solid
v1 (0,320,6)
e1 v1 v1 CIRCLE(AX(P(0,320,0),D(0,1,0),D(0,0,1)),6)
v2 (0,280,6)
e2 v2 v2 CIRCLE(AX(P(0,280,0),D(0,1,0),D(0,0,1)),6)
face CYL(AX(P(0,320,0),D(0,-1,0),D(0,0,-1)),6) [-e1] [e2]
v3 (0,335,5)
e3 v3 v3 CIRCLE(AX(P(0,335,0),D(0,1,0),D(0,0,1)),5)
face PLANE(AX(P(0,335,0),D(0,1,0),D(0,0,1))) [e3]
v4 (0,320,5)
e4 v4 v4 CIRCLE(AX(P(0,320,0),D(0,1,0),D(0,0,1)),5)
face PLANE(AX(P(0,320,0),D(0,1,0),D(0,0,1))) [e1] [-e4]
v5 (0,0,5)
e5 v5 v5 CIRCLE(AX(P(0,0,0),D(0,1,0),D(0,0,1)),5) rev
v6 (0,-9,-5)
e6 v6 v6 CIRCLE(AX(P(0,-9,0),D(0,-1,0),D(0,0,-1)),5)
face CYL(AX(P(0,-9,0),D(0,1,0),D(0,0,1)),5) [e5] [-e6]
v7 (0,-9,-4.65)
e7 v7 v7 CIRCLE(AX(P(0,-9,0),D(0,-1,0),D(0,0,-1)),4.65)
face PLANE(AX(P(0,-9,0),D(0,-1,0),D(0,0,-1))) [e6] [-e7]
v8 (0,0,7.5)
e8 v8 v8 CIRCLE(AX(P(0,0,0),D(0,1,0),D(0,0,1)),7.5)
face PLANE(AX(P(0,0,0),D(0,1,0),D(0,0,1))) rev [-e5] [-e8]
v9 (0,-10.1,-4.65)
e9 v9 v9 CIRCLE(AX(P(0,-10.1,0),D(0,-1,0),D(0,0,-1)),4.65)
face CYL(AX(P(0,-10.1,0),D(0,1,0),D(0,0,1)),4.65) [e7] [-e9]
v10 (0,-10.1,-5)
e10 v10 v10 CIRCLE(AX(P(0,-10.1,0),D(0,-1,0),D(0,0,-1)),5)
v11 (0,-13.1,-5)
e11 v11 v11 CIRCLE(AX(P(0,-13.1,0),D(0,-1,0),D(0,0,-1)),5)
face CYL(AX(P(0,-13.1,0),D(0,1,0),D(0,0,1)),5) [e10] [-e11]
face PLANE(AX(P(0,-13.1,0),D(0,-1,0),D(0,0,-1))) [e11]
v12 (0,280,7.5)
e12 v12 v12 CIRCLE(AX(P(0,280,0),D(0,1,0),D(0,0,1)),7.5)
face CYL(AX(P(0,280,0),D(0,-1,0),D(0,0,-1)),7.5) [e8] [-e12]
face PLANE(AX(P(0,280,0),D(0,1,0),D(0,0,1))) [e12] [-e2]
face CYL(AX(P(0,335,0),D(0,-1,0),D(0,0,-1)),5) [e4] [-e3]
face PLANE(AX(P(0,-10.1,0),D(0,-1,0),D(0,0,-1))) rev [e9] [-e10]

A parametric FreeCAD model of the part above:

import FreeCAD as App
import Part
import Sketcher
from FreeCAD import Vector
Q = App.Units.Quantity

doc = App.newDocument("Part")
params = doc.addObject("Spreadsheet::Sheet", "Params")
for row, (alias, value) in enumerate([
    ("sketch1_diameter", "15 mm"),
    ("pad1_length", "280 mm"),
    ("sketch2_diameter", "12 mm"),
    ("pad2_length", "40 mm"),
    ("sketch3_diameter", "10 mm"),
    ("pad3_length", "15 mm"),
    ("sketch4_diameter", "10 mm"),
    ("pad4_length", "9 mm"),
    ("sketch5_diameter", "9.3 mm"),
    ("pad5_length", "1.1 mm"),
    ("sketch6_diameter", "10 mm"),
    ("pad6_length", "3 mm"),
], start=1):
    params.set(f"A{row}", alias)
    params.set(f"B{row}", "=" + value)
    params.setAlias(f"B{row}", alias)

body = doc.addObject("PartDesign::Body", "Body")

sketch1 = doc.addObject("Sketcher::SketchObject", "Sketch")
body.addObject(sketch1)
sketch1.AttachmentSupport = (doc.XZ_Plane, [""])
sketch1.MapMode = "FlatFace"
sketch1.addGeometry(Part.Circle(Vector(0, 0, 0), Vector(0, 0, 1), 8), False)
sketch1.addConstraint([
    Sketcher.Constraint("Coincident", 0, 3, -1, 1),
    Sketcher.Constraint("Diameter", 0, Q("15 mm")),
])
sketch1.setExpression("Constraints[1]", "Params.sketch1_diameter")
pad1 = doc.addObject("PartDesign::Pad", "Pad")
body.addObject(pad1)
pad1.Profile = sketch1
pad1.setExpression("Length", "Params.pad1_length")
pad1.Reversed = True

sketch2 = doc.addObject("Sketcher::SketchObject", "Sketch001")
body.addObject(sketch2)
sketch2.AttachmentSupport = (doc.XZ_Plane, [""])
sketch2.MapMode = "FlatFace"
sketch2.AttachmentOffset = App.Placement(Vector(0, 0, -280), App.Rotation())
sketch2.addGeometry(Part.Circle(Vector(0, 0, 0), Vector(0, 0, 1), 6), False)
sketch2.addConstraint([
    Sketcher.Constraint("Coincident", 0, 3, -1, 1),
    Sketcher.Constraint("Diameter", 0, Q("12 mm")),
])
sketch2.setExpression("Constraints[1]", "Params.sketch2_diameter")
pad2 = doc.addObject("PartDesign::Pad", "Pad001")
body.addObject(pad2)
pad2.Profile = sketch2
pad2.setExpression("Length", "Params.pad2_length")
pad2.Reversed = True

sketch3 = doc.addObject("Sketcher::SketchObject", "Sketch002")
body.addObject(sketch3)
sketch3.AttachmentSupport = (doc.XZ_Plane, [""])
sketch3.MapMode = "FlatFace"
sketch3.AttachmentOffset = App.Placement(Vector(0, 0, -320), App.Rotation())
sketch3.addGeometry(Part.Circle(Vector(0, 0, 0), Vector(0, 0, 1), 5), False)
sketch3.addConstraint([
    Sketcher.Constraint("Coincident", 0, 3, -1, 1),
    Sketcher.Constraint("Diameter", 0, Q("10 mm")),
])
sketch3.setExpression("Constraints[1]", "Params.sketch3_diameter")
pad3 = doc.addObject("PartDesign::Pad", "Pad002")
body.addObject(pad3)
pad3.Profile = sketch3
pad3.setExpression("Length", "Params.pad3_length")
pad3.Reversed = True

sketch4 = doc.addObject("Sketcher::SketchObject", "Sketch003")
body.addObject(sketch4)
sketch4.AttachmentSupport = (doc.XZ_Plane, [""])
sketch4.MapMode = "FlatFace"
sketch4.AttachmentOffset = App.Placement(Vector(0, 0, 9), App.Rotation())
sketch4.addGeometry(Part.Circle(Vector(0, 0, 0), Vector(0, 0, 1), 5), False)
sketch4.addConstraint([
    Sketcher.Constraint("Coincident", 0, 3, -1, 1),
    Sketcher.Constraint("Diameter", 0, Q("10 mm")),
])
sketch4.setExpression("Constraints[1]", "Params.sketch4_diameter")
pad4 = doc.addObject("PartDesign::Pad", "Pad003")
body.addObject(pad4)
pad4.Profile = sketch4
pad4.setExpression("Length", "Params.pad4_length")
pad4.Reversed = True

sketch5 = doc.addObject("Sketcher::SketchObject", "Sketch004")
body.addObject(sketch5)
sketch5.AttachmentSupport = (doc.XZ_Plane, [""])
sketch5.MapMode = "FlatFace"
sketch5.AttachmentOffset = App.Placement(Vector(0, 0, 9), App.Rotation())
sketch5.addGeometry(Part.Circle(Vector(0, 0, 0), Vector(0, 0, 1), 4.7), False)
sketch5.addConstraint([
    Sketcher.Constraint("Coincident", 0, 3, -1, 1),
    Sketcher.Constraint("Diameter", 0, Q("9.3 mm")),
])
sketch5.setExpression("Constraints[1]", "Params.sketch5_diameter")
pad5 = doc.addObject("PartDesign::Pad", "Pad004")
body.addObject(pad5)
pad5.Profile = sketch5
pad5.setExpression("Length", "Params.pad5_length")

sketch6 = doc.addObject("Sketcher::SketchObject", "Sketch005")
body.addObject(sketch6)
sketch6.AttachmentSupport = (doc.XZ_Plane, [""])
sketch6.MapMode = "FlatFace"
sketch6.AttachmentOffset = App.Placement(Vector(0, 0, 13.1), App.Rotation())
sketch6.addGeometry(Part.Circle(Vector(0, 0, 0), Vector(0, 0, 1), 5), False)
sketch6.addConstraint([
    Sketcher.Constraint("Coincident", 0, 3, -1, 1),
    Sketcher.Constraint("Diameter", 0, Q("10 mm")),
])
sketch6.setExpression("Constraints[1]", "Params.sketch6_diameter")
pad6 = doc.addObject("PartDesign::Pad", "Pad005")
body.addObject(pad6)
pad6.Profile = sketch6
pad6.setExpression("Length", "Params.pad6_length")
pad6.Reversed = True

doc.recompute()
